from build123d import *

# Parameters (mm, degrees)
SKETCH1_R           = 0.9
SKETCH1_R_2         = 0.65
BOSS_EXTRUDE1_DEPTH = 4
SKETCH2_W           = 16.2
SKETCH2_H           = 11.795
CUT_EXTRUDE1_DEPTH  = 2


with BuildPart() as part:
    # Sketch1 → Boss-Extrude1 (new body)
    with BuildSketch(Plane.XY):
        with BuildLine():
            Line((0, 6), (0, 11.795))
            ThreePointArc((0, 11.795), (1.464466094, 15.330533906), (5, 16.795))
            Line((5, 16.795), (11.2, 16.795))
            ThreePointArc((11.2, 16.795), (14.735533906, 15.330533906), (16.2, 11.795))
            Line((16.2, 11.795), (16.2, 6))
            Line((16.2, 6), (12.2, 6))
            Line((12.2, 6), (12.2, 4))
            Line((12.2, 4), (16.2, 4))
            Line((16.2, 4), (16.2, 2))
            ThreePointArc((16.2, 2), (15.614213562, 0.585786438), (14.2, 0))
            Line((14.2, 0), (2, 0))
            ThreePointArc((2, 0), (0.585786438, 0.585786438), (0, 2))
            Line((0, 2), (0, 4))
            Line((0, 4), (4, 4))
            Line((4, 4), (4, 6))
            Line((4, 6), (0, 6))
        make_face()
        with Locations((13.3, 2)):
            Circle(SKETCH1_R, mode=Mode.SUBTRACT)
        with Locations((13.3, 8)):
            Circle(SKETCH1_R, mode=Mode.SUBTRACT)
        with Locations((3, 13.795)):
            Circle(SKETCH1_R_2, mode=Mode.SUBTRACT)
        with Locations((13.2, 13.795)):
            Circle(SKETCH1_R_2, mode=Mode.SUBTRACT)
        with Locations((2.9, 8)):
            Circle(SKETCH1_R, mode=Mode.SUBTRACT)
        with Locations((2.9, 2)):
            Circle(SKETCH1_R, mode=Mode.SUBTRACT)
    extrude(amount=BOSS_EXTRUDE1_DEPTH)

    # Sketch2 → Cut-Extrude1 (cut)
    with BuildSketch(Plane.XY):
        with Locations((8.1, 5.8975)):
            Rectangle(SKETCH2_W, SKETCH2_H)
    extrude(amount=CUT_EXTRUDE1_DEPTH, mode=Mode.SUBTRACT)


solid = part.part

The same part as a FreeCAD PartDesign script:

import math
import FreeCAD as App
import Part
import Sketcher
from FreeCAD import Vector

doc = App.newDocument("Part")
body = doc.addObject("PartDesign::Body", "Body")

# Sketch on XY plane
sketch1 = body.newObject("Sketcher::SketchObject", "Sketch")
sketch1.AttachmentSupport = (doc.getObject("XY_Plane"), [""])
sketch1.MapMode = "FlatFace"
sketch1.addGeometry([
    Part.LineSegment(Vector(0, 11.8, 0), Vector(0, 6, 0)),  # 0
    Part.LineSegment(Vector(0, 6, 0), Vector(4, 6, 0)),  # 1
    Part.LineSegment(Vector(4, 6, 0), Vector(4, 4, 0)),  # 2
    Part.LineSegment(Vector(4, 4, 0), Vector(0, 4, 0)),  # 3
    Part.LineSegment(Vector(0, 4, 0), Vector(0, 2, 0)),  # 4
    Part.ArcOfCircle(Part.Circle(Vector(2, 2, 0), Vector(0, 0, 1), 2), math.radians(-180), math.radians(-90)),  # 5
    Part.LineSegment(Vector(2, 0, 0), Vector(14.2, 0, 0)),  # 6
    Part.ArcOfCircle(Part.Circle(Vector(14.2, 2, 0), Vector(0, 0, 1), 2), math.radians(-90), math.radians(0)),  # 7
    Part.LineSegment(Vector(16.2, 2, 0), Vector(16.2, 4, 0)),  # 8
    Part.LineSegment(Vector(16.2, 4, 0), Vector(12.2, 4, 0)),  # 9
    Part.LineSegment(Vector(12.2, 4, 0), Vector(12.2, 6, 0)),  # 10
    Part.LineSegment(Vector(12.2, 6, 0), Vector(16.2, 6, 0)),  # 11
    Part.LineSegment(Vector(16.2, 6, 0), Vector(16.2, 11.8, 0)),  # 12
    Part.ArcOfCircle(Part.Circle(Vector(11.2, 11.8, 0), Vector(0, 0, 1), 5), math.radians(0), math.radians(90)),  # 13
    Part.LineSegment(Vector(11.2, 16.8, 0), Vector(5, 16.8, 0)),  # 14
    Part.ArcOfCircle(Part.Circle(Vector(5, 11.8, 0), Vector(0, 0, 1), 5), math.radians(90), math.radians(180)),  # 15
    Part.Circle(Vector(13.3, 2, 0), Vector(0, 0, 1), 0.9),  # 16
    Part.Circle(Vector(2.9, 2, 0), Vector(0, 0, 1), 0.9),  # 17
    Part.Circle(Vector(13.3, 8, 0), Vector(0, 0, 1), 0.9),  # 18
    Part.Circle(Vector(13.2, 13.8, 0), Vector(0, 0, 1), 0.7),  # 19
    Part.Circle(Vector(2.9, 8, 0), Vector(0, 0, 1), 0.9),  # 20
    Part.Circle(Vector(3, 13.8, 0), Vector(0, 0, 1), 0.7),  # 21
], False)
sketch1.addConstraint([
    Sketcher.Constraint("Coincident", 0, 2, 1, 1),
    Sketcher.Constraint("Coincident", 1, 2, 2, 1),
    Sketcher.Constraint("Coincident", 2, 2, 3, 1),
    Sketcher.Constraint("Coincident", 3, 2, 4, 1),
    Sketcher.Constraint("Tangent", 4, 2, 5, 1),
    Sketcher.Constraint("Tangent", 5, 2, 6, 1),
    Sketcher.Constraint("Tangent", 6, 2, 7, 1),
    Sketcher.Constraint("Tangent", 7, 2, 8, 1),
    Sketcher.Constraint("Coincident", 8, 2, 9, 1),
    Sketcher.Constraint("Coincident", 9, 2, 10, 1),
    Sketcher.Constraint("Coincident", 10, 2, 11, 1),
    Sketcher.Constraint("Coincident", 11, 2, 12, 1),
    Sketcher.Constraint("Tangent", 12, 2, 13, 1),
    Sketcher.Constraint("Tangent", 13, 2, 14, 1),
    Sketcher.Constraint("Tangent", 14, 2, 15, 1),
    Sketcher.Constraint("Tangent", 15, 2, 0, 1),
    Sketcher.Constraint("Vertical", 0),
    Sketcher.Constraint("Horizontal", 1),
    Sketcher.Constraint("Vertical", 2),
    Sketcher.Constraint("Horizontal", 3),
    Sketcher.Constraint("Vertical", 4),
    Sketcher.Constraint("Horizontal", 6),
    Sketcher.Constraint("Vertical", 8),
    Sketcher.Constraint("Horizontal", 9),
    Sketcher.Constraint("Vertical", 10),
    Sketcher.Constraint("Horizontal", 11),
    Sketcher.Constraint("Vertical", 12),
    Sketcher.Constraint("Horizontal", 14),
    Sketcher.Constraint("Equal", 5, 7),
    Sketcher.Constraint("Equal", 13, 15),
    Sketcher.Constraint("Equal", 16, 17),
    Sketcher.Constraint("Equal", 17, 18),
    Sketcher.Constraint("Equal", 18, 20),
    Sketcher.Constraint("Equal", 19, 21),
    Sketcher.Constraint("PointOnObject", 0, 2, -2),
    Sketcher.Constraint("PointOnObject", 3, 2, -2),
    Sketcher.Constraint("PointOnObject", 5, 2, -1),
    Sketcher.Constraint("Horizontal", 7, 3, 16, 3),
    Sketcher.Constraint("Horizontal", 16, 3, 17, 3),
    Sketcher.Constraint("Horizontal", 18, 3, 20, 3),
    Sketcher.Constraint("Horizontal", 19, 3, 21, 3),
    Sketcher.Constraint("Horizontal", 3, 2, 8, 2),
    Sketcher.Constraint("Horizontal", 1, 2, 10, 2),
    Sketcher.Constraint("Vertical", 16, 3, 18, 3),
    Sketcher.Constraint("Vertical", 17, 3, 20, 3),
    Sketcher.Constraint("Vertical", 8, 2, 11, 2),
    Sketcher.Constraint("Equal", 3, 9),
    Sketcher.Constraint("Equal", 2, 4),
    Sketcher.Constraint("Radius", 5, 2.0),
    Sketcher.Constraint("Radius", 13, 5.0),
    Sketcher.Constraint("Diameter", 16, 1.8),
    Sketcher.Constraint("Diameter", 19, 1.3),
    Sketcher.Constraint("DistanceX", 1, 1, 1, 2, 4.0),
    Sketcher.Constraint("DistanceY", 2, 2, 2, 1, 2.0),
    Sketcher.Constraint("DistanceX", 6, 1, 6, 2, 12.2),
    Sketcher.Constraint("DistanceY", -1, 1, 18, 3, 8.0),
    Sketcher.Constraint("DistanceX", -1, 1, 21, 3, 3.0),
    Sketcher.Constraint("DistanceX", 13, 3, 19, 3, 2.0),
    Sketcher.Constraint("DistanceY", 13, 3, 19, 3, 2.0),
    Sketcher.Constraint("DistanceX", -1, 1, 16, 3, 13.3),
    Sketcher.Constraint("DistanceX", -1, 1, 17, 3, 2.9),
    Sketcher.Constraint("DistanceY", 0, 2, 0, 1, 5.795),
])
pad1 = body.newObject("PartDesign::Pad", "Pad")
pad1.Profile = sketch1
pad1.Length = 4

# Sketch on XY plane
sketch2 = body.newObject("Sketcher::SketchObject", "Sketch001")
sketch2.AttachmentSupport = (doc.getObject("XY_Plane"), [""])
sketch2.MapMode = "FlatFace"
sketch2.addGeometry([
    Part.LineSegment(Vector(0, 12, 0), Vector(0, 0, 0)),
    Part.LineSegment(Vector(0, 0, 0), Vector(16, 0, 0)),
    Part.LineSegment(Vector(16, 0, 0), Vector(16, 12, 0)),
    Part.LineSegment(Vector(16, 12, 0), Vector(0, 12, 0)),
], False)
sketch2.addConstraint([
    Sketcher.Constraint("Coincident", 0, 2, 1, 1),
    Sketcher.Constraint("Coincident", 1, 2, 2, 1),
    Sketcher.Constraint("Coincident", 2, 2, 3, 1),
    Sketcher.Constraint("Coincident", 3, 2, 0, 1),
    Sketcher.Constraint("Vertical", 0),
    Sketcher.Constraint("Horizontal", 1),
    Sketcher.Constraint("Vertical", 2),
    Sketcher.Constraint("Horizontal", 3),
    Sketcher.Constraint("Coincident", 0, 2, -1, 1),
    Sketcher.Constraint("DistanceX", 1, 1, 1, 2, 16.2),
    Sketcher.Constraint("DistanceY", 0, 2, 0, 1, 11.795),
])
pocket1 = body.newObject("PartDesign::Pocket", "Pocket")
pocket1.Profile = sketch2
pocket1.Length = 2
pocket1.Reversed = True

doc.recompute()
